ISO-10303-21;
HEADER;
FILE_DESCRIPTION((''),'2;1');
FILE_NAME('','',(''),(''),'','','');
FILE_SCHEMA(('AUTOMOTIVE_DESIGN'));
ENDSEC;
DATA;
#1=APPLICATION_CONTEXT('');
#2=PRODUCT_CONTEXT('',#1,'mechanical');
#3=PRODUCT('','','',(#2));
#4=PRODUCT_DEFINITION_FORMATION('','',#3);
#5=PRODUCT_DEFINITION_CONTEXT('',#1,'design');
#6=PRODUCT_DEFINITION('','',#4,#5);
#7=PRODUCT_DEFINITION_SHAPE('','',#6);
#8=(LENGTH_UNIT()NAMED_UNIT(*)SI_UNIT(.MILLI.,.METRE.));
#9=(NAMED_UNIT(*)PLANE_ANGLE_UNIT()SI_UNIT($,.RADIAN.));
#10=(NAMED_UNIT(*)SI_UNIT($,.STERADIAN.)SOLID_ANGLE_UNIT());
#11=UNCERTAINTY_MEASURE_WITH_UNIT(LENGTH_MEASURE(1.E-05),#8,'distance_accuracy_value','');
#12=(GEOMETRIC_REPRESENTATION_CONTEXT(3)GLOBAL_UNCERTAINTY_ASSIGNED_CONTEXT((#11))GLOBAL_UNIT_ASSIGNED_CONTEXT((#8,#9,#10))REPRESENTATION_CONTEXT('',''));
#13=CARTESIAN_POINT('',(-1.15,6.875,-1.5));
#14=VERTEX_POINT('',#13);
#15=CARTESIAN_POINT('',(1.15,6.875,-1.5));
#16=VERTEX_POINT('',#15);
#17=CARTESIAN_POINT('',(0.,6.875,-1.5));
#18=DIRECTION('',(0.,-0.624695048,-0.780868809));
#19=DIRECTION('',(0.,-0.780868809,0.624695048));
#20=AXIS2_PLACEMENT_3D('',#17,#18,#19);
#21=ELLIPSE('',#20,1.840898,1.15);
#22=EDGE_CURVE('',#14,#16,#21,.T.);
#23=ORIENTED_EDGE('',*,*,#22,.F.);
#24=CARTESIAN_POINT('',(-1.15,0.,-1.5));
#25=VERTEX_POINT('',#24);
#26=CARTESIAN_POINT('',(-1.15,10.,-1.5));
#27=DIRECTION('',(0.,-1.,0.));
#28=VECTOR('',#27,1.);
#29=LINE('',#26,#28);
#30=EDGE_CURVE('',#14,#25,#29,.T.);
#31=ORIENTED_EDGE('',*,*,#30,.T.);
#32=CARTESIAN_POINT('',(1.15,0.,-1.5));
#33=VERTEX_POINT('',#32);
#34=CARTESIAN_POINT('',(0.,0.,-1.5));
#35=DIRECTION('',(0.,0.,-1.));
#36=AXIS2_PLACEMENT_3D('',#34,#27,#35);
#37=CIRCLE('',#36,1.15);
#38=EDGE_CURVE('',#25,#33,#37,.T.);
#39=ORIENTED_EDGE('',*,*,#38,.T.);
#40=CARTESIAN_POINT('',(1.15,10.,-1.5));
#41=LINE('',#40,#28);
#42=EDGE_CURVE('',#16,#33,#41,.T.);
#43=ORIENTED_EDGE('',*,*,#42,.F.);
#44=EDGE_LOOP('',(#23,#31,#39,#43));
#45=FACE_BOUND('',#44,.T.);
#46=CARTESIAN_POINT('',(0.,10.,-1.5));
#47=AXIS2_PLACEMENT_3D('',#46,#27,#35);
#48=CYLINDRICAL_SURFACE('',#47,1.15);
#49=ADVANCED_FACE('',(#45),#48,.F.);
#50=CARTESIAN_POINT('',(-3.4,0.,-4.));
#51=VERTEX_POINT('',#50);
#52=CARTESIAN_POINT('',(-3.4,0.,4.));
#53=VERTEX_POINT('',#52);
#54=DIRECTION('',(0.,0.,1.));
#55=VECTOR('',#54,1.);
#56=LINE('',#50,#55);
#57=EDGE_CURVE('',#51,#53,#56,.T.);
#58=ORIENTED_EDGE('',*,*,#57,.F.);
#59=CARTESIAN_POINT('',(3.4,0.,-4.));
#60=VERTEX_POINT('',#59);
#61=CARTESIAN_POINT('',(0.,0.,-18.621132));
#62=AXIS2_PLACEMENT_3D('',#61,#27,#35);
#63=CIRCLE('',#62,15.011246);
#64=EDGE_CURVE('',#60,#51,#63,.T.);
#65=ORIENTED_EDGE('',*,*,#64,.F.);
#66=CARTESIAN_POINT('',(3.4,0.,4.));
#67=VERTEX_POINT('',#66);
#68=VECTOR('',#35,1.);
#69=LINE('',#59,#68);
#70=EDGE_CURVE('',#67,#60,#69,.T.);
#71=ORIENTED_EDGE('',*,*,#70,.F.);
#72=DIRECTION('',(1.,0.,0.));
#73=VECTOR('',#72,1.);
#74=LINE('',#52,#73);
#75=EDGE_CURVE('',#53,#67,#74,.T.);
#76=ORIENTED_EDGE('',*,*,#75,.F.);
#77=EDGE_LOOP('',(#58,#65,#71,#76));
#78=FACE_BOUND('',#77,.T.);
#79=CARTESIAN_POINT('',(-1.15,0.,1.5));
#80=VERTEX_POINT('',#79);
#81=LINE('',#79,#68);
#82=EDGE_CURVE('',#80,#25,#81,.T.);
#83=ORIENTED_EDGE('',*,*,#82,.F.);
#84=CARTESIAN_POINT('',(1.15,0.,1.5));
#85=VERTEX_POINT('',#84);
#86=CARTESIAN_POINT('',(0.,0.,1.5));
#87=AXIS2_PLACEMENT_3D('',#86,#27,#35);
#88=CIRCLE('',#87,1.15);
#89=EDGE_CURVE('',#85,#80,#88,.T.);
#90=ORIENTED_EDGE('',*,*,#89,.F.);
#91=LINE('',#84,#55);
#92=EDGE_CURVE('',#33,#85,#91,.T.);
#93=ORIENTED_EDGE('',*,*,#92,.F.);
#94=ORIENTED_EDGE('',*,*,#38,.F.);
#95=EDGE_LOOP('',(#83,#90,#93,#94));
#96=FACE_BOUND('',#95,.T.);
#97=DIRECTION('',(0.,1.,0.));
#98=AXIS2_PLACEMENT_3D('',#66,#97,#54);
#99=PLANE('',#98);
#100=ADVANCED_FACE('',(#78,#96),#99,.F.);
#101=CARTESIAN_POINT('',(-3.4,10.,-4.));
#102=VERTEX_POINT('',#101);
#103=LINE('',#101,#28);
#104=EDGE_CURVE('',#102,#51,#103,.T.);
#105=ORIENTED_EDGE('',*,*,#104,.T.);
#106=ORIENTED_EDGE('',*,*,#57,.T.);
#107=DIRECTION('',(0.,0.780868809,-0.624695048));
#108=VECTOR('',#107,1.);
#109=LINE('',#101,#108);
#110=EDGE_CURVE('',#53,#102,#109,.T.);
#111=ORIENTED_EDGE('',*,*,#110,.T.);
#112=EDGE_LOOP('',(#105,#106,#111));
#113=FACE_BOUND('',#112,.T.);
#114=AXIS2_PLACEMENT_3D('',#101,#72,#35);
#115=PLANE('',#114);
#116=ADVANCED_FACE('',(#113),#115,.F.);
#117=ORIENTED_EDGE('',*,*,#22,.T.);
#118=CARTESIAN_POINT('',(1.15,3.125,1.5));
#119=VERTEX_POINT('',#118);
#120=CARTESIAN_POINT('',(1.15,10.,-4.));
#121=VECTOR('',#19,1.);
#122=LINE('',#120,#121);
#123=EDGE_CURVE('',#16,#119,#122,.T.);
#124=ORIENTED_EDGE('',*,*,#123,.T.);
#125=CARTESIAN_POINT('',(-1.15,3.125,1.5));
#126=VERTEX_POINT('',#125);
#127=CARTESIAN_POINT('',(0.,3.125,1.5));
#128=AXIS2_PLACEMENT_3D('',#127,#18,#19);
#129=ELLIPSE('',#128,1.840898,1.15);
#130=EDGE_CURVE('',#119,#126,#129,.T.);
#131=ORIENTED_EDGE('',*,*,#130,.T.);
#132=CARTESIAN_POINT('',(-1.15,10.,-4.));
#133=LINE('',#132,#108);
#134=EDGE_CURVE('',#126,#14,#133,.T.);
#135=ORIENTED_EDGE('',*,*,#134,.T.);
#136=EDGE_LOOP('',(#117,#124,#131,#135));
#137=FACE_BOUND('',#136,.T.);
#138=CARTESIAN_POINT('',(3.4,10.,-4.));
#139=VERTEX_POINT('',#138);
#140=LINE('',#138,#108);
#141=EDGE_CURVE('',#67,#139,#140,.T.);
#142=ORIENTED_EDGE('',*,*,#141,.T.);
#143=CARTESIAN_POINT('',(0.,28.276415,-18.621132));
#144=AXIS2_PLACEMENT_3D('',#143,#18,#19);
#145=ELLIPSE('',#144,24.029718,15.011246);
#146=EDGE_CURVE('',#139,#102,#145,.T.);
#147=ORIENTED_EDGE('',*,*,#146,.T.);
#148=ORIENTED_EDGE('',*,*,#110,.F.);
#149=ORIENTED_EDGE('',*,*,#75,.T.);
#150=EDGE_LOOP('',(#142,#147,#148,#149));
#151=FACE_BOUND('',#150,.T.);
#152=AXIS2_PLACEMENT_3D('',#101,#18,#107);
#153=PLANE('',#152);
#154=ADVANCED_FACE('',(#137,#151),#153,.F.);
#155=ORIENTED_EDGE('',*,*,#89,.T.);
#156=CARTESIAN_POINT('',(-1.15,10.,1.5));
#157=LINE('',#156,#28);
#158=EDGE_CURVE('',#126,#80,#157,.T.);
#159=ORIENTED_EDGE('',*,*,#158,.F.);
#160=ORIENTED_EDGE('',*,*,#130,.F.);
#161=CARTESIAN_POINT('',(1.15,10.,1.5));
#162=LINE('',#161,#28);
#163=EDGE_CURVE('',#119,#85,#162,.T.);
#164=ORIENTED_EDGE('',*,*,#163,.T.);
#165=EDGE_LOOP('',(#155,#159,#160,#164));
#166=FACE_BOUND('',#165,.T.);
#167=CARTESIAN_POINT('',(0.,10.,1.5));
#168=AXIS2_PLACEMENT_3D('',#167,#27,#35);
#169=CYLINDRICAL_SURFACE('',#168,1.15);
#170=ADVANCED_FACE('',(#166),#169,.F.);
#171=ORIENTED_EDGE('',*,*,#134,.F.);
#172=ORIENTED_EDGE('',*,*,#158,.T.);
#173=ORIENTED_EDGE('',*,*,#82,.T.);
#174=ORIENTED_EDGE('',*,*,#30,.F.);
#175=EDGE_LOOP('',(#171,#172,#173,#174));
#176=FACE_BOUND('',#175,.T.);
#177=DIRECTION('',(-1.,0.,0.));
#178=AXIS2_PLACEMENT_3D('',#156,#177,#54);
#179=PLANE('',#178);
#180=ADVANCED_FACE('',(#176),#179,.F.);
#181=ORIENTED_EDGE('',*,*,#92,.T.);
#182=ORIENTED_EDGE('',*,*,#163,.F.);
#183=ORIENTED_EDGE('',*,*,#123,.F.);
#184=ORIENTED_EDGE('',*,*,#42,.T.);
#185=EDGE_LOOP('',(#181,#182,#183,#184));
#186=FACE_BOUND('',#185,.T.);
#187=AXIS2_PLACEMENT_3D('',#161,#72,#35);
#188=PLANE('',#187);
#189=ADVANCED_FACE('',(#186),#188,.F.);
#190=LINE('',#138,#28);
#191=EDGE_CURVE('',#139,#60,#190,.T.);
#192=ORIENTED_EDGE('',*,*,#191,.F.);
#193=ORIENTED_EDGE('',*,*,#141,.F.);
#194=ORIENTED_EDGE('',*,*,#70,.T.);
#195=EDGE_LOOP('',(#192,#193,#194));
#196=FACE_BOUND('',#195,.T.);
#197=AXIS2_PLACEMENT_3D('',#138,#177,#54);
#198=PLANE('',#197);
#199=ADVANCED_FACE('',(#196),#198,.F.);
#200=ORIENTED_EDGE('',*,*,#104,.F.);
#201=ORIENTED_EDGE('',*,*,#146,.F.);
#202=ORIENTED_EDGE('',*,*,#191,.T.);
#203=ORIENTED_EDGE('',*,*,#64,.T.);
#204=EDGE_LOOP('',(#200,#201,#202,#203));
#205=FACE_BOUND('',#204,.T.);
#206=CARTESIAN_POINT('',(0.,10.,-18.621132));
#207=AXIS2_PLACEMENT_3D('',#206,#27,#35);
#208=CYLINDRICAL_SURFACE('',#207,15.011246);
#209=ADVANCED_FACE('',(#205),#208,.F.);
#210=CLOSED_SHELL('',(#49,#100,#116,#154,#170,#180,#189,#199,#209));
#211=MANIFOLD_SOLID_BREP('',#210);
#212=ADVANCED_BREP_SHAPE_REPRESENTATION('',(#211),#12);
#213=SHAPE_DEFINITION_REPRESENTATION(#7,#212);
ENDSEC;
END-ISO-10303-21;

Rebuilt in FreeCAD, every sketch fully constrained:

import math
import FreeCAD as App
import Part
import Sketcher
from FreeCAD import Vector
Q = App.Units.Quantity


def add_polygon(sketch, points):
    """Adds a closed chain of lines whose ends are joined by coincident constraints."""
    first, n = sketch.GeometryCount, len(points)
    for a, b in zip(points, points[1:] + points[:1]):
        sketch.addGeometry(Part.LineSegment(App.Vector(*a, 0), App.Vector(*b, 0)), False)
    for i in range(n):
        sketch.addConstraint(Sketcher.Constraint("Coincident", first + i, 2, first + (i + 1) % n, 1))

doc = App.newDocument("Part")
body = doc.addObject("PartDesign::Body", "Body")

# Sketch on XZ plane
sketch1 = body.newObject("Sketcher::SketchObject", "Sketch")
sketch1.AttachmentSupport = (doc.getObject("XZ_Plane"), [""])
sketch1.MapMode = "FlatFace"
add_polygon(sketch1, [(-3, -4), (-3, 4), (3, 4), (3, -4)])  # lines 0-3
sketch1.addConstraint(Sketcher.Constraint("Vertical", 0))
sketch1.addConstraint(Sketcher.Constraint("Horizontal", 1))
sketch1.addConstraint(Sketcher.Constraint("Vertical", 2))
sketch1.addConstraint(Sketcher.Constraint("Horizontal", 3))
sketch1.addConstraint(Sketcher.Constraint("Symmetric", 0, 2, 2, 2, -1, 1))
sketch1.addConstraint(Sketcher.Constraint("DistanceY", 0, 1, 0, 2, Q("8 mm")))
sketch1.addConstraint(Sketcher.Constraint("DistanceX", 1, 1, 1, 2, Q("6.8 mm")))
pad1 = body.newObject("PartDesign::Pad", "Pad")
pad1.Profile = sketch1
pad1.Length = 10
pad1.Reversed = True

# Sketch on YZ plane
sketch2 = body.newObject("Sketcher::SketchObject", "Sketch001")
sketch2.AttachmentSupport = (doc.getObject("YZ_Plane"), [""])
sketch2.MapMode = "FlatFace"
sketch2.AttachmentOffset = App.Placement(Vector(0, 0, 3.4), App.Rotation())
add_polygon(sketch2, [(0, 4), (10, -4), (10, 4)])  # lines 0-2
sketch2.addConstraint(Sketcher.Constraint("Vertical", 1))
sketch2.addConstraint(Sketcher.Constraint("Horizontal", 2))
sketch2.addConstraint(Sketcher.Constraint("PointOnObject", 2, 2, -2))
sketch2.addConstraint(Sketcher.Constraint("DistanceX", 2, 2, 2, 1, Q("10 mm")))
sketch2.addConstraint(Sketcher.Constraint("DistanceY", 1, 1, 1, 2, Q("8 mm")))
sketch2.addConstraint(Sketcher.Constraint("DistanceY", 0, 2, -1, 1, Q("4 mm")))
pocket1 = body.newObject("PartDesign::Pocket", "Pocket")
pocket1.Profile = sketch2
pocket1.Type = "ThroughAll"

# Sketch on XZ plane
sketch3 = body.newObject("Sketcher::SketchObject", "Sketch002")
sketch3.AttachmentSupport = (doc.getObject("XZ_Plane"), [""])
sketch3.MapMode = "FlatFace"
sketch3.addGeometry(Part.LineSegment(Vector(1.1, -1.5, 0), Vector(1.1, 1.5, 0)), False)
sketch3.addGeometry(Part.ArcOfCircle(Part.Circle(Vector(0, 1.5, 0), Vector(0, 0, 1), 1.1), math.radians(0), math.radians(180)), False)
sketch3.addGeometry(Part.LineSegment(Vector(-1.1, 1.5, 0), Vector(-1.1, -1.5, 0)), False)
sketch3.addGeometry(Part.ArcOfCircle(Part.Circle(Vector(0, -1.5, 0), Vector(0, 0, 1), 1.1), math.radians(180), math.radians(360)), False)
sketch3.addConstraint(Sketcher.Constraint("Tangent", 0, 2, 1, 1))
sketch3.addConstraint(Sketcher.Constraint("Tangent", 1, 2, 2, 1))
sketch3.addConstraint(Sketcher.Constraint("Tangent", 2, 2, 3, 1))
sketch3.addConstraint(Sketcher.Constraint("Tangent", 3, 2, 0, 1))
sketch3.addConstraint(Sketcher.Constraint("Vertical", 0))
sketch3.addConstraint(Sketcher.Constraint("Vertical", 2))
sketch3.addConstraint(Sketcher.Constraint("Symmetric", 1, 3, 3, 3, -1, 1))
sketch3.addConstraint(Sketcher.Constraint("DistanceY", 0, 1, 0, 2, Q("3 mm")))
sketch3.addConstraint(Sketcher.Constraint("Radius", 1, Q("1.15 mm")))
pocket2 = body.newObject("PartDesign::Pocket", "Pocket001")
pocket2.Profile = sketch3
pocket2.Type = "ThroughAll"

# Sketch on XZ plane
sketch4 = body.newObject("Sketcher::SketchObject", "Sketch003")
sketch4.AttachmentSupport = (doc.getObject("XZ_Plane"), [""])
sketch4.MapMode = "FlatFace"
sketch4.addGeometry(Part.Circle(Vector(0, -19, 0), Vector(0, 0, 1), 15), False)
sketch4.addConstraint(Sketcher.Constraint("PointOnObject", 0, 3, -2))
sketch4.addConstraint(Sketcher.Constraint("Diameter", 0, Q("30.022492 mm")))
sketch4.addConstraint(Sketcher.Constraint("DistanceY", 0, 3, -1, 1, Q("18.621132 mm")))
pocket3 = body.newObject("PartDesign::Pocket", "Pocket002")
pocket3.Profile = sketch4
pocket3.Type = "ThroughAll"

doc.recompute()
